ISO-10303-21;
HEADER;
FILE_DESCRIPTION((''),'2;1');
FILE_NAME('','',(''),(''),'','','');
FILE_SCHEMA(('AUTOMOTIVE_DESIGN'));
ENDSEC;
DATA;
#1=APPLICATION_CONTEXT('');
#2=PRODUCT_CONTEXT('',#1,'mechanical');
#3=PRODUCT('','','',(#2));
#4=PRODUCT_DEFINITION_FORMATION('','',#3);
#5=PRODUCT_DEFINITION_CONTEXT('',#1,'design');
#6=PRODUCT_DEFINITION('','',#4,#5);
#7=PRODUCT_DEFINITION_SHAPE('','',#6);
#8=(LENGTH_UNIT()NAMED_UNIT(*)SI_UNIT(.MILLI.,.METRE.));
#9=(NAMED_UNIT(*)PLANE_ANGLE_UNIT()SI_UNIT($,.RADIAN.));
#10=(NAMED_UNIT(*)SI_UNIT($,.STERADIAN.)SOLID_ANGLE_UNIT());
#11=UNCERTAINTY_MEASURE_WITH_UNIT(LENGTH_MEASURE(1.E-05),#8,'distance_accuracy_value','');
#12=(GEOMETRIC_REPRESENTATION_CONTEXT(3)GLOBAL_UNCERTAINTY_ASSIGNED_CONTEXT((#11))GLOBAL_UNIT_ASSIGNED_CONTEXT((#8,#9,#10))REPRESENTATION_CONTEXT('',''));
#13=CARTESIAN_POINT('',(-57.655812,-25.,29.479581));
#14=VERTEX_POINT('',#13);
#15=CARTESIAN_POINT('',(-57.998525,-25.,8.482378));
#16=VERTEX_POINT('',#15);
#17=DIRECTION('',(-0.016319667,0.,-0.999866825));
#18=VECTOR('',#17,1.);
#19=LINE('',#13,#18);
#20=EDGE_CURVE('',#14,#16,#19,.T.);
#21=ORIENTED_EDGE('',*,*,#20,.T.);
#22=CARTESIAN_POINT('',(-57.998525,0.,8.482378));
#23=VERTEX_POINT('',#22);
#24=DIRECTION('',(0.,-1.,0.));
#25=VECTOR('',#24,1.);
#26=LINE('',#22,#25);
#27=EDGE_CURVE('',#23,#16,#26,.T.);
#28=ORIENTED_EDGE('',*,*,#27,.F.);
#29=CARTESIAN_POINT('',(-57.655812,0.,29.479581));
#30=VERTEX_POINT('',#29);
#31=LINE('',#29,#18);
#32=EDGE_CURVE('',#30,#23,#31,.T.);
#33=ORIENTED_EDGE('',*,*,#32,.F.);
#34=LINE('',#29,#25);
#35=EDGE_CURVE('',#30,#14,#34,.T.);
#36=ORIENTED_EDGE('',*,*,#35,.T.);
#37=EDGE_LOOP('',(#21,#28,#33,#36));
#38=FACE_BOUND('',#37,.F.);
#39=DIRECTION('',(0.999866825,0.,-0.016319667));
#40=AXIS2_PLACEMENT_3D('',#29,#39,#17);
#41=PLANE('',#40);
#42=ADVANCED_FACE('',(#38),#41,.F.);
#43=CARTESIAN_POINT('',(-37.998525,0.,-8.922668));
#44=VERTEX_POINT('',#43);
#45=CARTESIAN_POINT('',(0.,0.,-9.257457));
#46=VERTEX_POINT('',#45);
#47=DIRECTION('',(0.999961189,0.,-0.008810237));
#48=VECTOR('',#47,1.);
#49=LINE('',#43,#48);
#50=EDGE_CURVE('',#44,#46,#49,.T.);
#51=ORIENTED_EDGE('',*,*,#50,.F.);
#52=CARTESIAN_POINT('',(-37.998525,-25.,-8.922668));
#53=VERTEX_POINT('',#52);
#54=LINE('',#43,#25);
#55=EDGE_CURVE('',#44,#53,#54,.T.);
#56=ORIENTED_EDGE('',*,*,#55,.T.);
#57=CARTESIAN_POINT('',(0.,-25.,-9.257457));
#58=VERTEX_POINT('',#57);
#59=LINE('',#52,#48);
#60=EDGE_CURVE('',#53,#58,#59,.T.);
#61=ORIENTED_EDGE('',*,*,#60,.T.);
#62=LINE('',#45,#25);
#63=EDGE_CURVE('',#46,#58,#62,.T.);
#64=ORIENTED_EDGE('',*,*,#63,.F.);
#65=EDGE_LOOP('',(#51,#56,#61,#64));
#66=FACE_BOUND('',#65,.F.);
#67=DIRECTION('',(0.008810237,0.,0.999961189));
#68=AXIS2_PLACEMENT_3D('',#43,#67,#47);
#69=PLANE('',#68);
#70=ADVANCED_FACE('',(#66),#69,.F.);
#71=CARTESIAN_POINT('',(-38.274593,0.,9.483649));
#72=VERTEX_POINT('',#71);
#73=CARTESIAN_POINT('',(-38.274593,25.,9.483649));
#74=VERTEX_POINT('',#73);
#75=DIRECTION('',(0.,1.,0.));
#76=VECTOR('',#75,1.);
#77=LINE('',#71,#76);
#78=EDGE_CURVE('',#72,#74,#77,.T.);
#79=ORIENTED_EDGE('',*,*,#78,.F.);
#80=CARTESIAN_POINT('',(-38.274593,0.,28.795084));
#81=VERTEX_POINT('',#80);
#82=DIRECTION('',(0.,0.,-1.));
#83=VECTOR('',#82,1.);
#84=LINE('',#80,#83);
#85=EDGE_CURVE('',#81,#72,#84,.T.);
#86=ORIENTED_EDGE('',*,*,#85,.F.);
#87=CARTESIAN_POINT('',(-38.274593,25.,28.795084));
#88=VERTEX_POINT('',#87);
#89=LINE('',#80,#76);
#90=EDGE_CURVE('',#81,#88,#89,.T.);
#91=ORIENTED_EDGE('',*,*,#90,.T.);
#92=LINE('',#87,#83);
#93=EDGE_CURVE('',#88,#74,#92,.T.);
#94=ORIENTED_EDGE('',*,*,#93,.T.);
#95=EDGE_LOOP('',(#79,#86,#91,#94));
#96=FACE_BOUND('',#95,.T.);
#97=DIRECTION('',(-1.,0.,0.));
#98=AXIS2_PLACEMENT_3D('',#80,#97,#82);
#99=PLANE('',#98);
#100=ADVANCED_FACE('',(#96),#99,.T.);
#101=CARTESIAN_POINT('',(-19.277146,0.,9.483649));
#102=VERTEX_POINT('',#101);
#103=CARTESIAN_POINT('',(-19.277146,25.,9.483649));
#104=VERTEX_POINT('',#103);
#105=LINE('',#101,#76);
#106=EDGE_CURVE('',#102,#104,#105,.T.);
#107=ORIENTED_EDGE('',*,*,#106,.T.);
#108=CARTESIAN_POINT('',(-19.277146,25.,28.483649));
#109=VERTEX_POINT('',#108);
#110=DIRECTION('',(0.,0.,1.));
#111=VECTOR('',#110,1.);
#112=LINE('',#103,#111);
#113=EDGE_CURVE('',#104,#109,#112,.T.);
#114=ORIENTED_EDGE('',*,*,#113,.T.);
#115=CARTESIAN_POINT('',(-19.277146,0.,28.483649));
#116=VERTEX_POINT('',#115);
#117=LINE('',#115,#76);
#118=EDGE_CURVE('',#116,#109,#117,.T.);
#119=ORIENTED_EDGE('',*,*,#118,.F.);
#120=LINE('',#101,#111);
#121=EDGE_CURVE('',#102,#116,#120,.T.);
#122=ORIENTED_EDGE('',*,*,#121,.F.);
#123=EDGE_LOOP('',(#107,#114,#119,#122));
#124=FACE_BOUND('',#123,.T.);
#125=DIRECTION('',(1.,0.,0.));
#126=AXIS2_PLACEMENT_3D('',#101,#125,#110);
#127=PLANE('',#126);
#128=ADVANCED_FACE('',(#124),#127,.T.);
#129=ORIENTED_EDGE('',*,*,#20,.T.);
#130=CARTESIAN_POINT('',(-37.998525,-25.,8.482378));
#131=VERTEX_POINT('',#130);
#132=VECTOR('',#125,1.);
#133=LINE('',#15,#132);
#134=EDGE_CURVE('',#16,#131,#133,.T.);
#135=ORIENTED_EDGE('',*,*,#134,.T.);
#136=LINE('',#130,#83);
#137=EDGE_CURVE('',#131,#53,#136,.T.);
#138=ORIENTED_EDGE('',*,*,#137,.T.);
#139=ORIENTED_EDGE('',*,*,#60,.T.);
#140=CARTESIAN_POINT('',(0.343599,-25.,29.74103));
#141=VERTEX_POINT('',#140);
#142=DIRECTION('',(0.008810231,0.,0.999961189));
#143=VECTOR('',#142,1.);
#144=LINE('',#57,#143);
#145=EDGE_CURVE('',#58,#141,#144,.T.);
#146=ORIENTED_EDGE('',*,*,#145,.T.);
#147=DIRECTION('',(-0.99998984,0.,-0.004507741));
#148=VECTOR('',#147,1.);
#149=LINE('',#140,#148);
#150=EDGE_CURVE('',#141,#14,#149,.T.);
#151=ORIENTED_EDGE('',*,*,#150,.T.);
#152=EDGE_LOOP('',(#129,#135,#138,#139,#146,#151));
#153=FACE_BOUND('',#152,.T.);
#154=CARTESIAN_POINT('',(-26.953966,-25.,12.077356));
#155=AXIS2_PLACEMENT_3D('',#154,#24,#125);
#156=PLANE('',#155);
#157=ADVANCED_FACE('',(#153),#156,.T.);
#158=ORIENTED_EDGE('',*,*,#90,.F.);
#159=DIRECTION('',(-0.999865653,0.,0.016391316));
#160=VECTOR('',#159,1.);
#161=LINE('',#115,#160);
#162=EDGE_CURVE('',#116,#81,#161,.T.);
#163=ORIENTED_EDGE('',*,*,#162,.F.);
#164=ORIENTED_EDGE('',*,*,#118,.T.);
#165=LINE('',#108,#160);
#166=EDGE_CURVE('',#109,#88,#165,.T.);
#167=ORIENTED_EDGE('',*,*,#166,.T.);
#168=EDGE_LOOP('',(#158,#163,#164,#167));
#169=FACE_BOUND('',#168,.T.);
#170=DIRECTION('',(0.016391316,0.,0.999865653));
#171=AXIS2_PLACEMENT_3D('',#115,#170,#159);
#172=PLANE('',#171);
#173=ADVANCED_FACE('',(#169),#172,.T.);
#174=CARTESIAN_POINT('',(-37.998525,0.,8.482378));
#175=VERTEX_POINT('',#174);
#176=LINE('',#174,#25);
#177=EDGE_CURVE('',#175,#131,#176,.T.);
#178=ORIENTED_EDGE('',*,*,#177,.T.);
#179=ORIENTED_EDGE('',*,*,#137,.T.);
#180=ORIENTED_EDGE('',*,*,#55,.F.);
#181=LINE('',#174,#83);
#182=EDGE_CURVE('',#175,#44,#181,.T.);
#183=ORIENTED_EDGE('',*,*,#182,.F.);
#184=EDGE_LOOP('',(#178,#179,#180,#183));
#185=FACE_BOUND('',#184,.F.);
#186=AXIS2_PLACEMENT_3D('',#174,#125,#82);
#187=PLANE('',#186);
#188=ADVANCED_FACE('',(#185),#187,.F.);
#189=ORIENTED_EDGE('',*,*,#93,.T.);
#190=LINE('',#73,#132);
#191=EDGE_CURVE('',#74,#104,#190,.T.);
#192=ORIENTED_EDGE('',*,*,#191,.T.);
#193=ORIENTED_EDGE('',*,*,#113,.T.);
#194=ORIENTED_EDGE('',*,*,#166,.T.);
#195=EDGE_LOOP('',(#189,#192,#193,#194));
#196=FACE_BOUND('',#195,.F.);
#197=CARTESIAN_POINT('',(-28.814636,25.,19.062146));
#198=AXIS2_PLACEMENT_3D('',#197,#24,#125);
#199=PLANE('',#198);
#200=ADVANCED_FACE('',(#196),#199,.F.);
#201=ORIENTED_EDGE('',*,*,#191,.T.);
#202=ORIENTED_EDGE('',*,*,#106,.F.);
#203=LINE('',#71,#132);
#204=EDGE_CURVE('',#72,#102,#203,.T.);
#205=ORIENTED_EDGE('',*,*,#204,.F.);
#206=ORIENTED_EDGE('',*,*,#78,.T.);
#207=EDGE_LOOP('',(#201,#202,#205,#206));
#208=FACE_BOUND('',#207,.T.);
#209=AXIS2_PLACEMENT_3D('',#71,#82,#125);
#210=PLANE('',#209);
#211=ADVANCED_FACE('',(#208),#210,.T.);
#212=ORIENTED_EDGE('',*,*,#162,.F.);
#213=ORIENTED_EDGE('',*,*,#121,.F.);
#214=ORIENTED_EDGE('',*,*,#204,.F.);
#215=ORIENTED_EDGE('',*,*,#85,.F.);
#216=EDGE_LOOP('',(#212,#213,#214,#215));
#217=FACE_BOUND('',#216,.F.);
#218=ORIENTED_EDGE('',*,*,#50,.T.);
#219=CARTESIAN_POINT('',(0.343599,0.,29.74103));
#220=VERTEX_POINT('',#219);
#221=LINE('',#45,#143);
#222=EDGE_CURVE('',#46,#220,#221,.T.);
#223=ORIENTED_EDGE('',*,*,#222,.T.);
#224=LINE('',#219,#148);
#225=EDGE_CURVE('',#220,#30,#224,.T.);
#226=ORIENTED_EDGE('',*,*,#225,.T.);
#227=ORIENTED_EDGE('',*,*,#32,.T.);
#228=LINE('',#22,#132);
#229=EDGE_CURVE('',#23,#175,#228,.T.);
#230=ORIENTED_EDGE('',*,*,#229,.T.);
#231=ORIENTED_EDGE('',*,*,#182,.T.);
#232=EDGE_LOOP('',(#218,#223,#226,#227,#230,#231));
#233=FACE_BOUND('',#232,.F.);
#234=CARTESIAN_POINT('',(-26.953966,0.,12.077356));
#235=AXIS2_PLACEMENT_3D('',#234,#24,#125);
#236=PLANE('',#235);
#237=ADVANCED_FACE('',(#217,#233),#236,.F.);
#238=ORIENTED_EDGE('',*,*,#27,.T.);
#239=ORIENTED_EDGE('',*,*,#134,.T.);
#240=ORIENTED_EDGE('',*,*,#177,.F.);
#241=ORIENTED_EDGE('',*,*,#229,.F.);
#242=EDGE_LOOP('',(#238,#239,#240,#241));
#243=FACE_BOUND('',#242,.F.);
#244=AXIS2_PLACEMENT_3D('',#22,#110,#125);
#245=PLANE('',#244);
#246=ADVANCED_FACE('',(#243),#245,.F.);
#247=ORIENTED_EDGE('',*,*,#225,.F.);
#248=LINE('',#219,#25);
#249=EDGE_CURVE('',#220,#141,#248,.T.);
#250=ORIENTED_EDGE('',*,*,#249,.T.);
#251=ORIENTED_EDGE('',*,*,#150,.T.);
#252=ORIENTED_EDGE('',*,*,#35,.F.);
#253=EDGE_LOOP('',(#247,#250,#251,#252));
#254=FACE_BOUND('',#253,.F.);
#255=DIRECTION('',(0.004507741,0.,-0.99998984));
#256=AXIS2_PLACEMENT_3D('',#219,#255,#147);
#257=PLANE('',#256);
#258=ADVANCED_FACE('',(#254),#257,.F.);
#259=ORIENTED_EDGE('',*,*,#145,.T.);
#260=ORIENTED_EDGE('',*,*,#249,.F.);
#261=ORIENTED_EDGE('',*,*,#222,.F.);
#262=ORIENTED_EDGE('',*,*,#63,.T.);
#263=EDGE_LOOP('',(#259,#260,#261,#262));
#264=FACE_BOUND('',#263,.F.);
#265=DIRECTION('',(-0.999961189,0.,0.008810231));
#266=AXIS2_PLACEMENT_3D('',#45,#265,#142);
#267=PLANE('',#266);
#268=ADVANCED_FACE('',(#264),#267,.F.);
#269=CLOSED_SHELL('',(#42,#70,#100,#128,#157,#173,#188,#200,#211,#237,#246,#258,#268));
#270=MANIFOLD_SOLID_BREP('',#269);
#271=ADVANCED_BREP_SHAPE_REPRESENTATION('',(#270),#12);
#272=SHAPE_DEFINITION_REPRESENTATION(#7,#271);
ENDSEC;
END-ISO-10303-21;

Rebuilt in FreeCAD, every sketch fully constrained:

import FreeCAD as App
import Part
import Sketcher
from FreeCAD import Vector


def add_polygon(sketch, points):
    """Adds a closed chain of lines whose ends are joined by coincident constraints."""
    first, n = sketch.GeometryCount, len(points)
    for a, b in zip(points, points[1:] + points[:1]):
        sketch.addGeometry(Part.LineSegment(App.Vector(*a, 0), App.Vector(*b, 0)), False)
    for i in range(n):
        sketch.addConstraint(Sketcher.Constraint("Coincident", first + i, 2, first + (i + 1) % n, 1))

doc = App.newDocument("Part")
params = doc.addObject("Spreadsheet::Sheet", "Params")
for row, (alias, value) in enumerate([
    ("sketch1_width", "20 mm"),
    ("sketch1_length", "58 mm"),
    ("sketch1_length2", "21 mm"),
    ("sketch1_length3", "38 mm"),
    ("sketch1_length4", "39.000001 mm"),
    ("pad1_length", "25 mm"),
    ("sketch2_height", "19 mm"),
    ("sketch2_length", "19 mm"),
    ("pad2_length", "25 mm"),
], start=1):
    params.set(f"A{row}", alias)
    params.set(f"B{row}", "=" + value)
    params.setAlias(f"B{row}", alias)

body = doc.addObject("PartDesign::Body", "Body")

# Sketch on XZ plane
sketch1 = body.newObject("Sketcher::SketchObject", "Sketch")
sketch1.AttachmentSupport = (doc.getObject("XZ_Plane"), [""])
sketch1.MapMode = "FlatFace"
add_polygon(sketch1, [(0, 30), (-58, 29), (-58, 8), (-38, 8), (-38, -9), (0, -9)])  # lines 0-5
sketch1.addConstraint([
    Sketcher.Constraint("Horizontal", 2),
    Sketcher.Constraint("Vertical", 3),
    Sketcher.Constraint("PointOnObject", 4, 2, -2),
    Sketcher.Constraint("Perpendicular", 4, 5),
    Sketcher.Constraint("DistanceX", 2, 1, 2, 2, 20.0),
    Sketcher.Constraint("Distance", 0, 58.0),
    Sketcher.Constraint("Distance", 1, 21.0),
    Sketcher.Constraint("Distance", 4, 38.0),
    Sketcher.Constraint("Distance", 5, 39.000001),
    Sketcher.Constraint("DistanceX", -1, 1, 5, 2, 0.343599),
    Sketcher.Constraint("DistanceY", 3, 2, 3, 1, 17.405046),
    Sketcher.Constraint("DistanceY", -1, 1, 0, 2, 29.479581),
])
sketch1.setExpression("Constraints[10]", "Params.sketch1_width")
sketch1.setExpression("Constraints[11]", "Params.sketch1_length")
sketch1.setExpression("Constraints[12]", "Params.sketch1_length2")
sketch1.setExpression("Constraints[13]", "Params.sketch1_length3")
sketch1.setExpression("Constraints[14]", "Params.sketch1_length4")
pad1 = body.newObject("PartDesign::Pad", "Pad")
pad1.Profile = sketch1
pad1.setExpression("Length", "Params.pad1_length")

# Sketch on XZ plane
sketch2 = body.newObject("Sketcher::SketchObject", "Sketch001")
sketch2.AttachmentSupport = (doc.getObject("XZ_Plane"), [""])
sketch2.MapMode = "FlatFace"
add_polygon(sketch2, [(-19.277146, 28.483649), (-38.274593, 28.795084), (-38.274593, 9.483649), (-19.277146, 9.483649)])  # lines 0-3
sketch2.addConstraint([
    Sketcher.Constraint("Vertical", 1),
    Sketcher.Constraint("Horizontal", 2),
    Sketcher.Constraint("Vertical", 3),
    Sketcher.Constraint("DistanceY", 3, 1, 3, 2, 19.0),
    Sketcher.Constraint("Distance", 0, 19.0),
    Sketcher.Constraint("DistanceX", 2, 1, 2, 2, 18.997447),
    Sketcher.Constraint("DistanceY", -1, 1, 1, 2, 9.483649),
    Sketcher.Constraint("DistanceX", 0, 2, -1, 1, 38.274593),
])
sketch2.setExpression("Constraints[7]", "Params.sketch2_height")
sketch2.setExpression("Constraints[8]", "Params.sketch2_length")
pad2 = body.newObject("PartDesign::Pad", "Pad001")
pad2.Profile = sketch2
pad2.setExpression("Length", "Params.pad2_length")
pad2.Reversed = True

doc.recompute()
